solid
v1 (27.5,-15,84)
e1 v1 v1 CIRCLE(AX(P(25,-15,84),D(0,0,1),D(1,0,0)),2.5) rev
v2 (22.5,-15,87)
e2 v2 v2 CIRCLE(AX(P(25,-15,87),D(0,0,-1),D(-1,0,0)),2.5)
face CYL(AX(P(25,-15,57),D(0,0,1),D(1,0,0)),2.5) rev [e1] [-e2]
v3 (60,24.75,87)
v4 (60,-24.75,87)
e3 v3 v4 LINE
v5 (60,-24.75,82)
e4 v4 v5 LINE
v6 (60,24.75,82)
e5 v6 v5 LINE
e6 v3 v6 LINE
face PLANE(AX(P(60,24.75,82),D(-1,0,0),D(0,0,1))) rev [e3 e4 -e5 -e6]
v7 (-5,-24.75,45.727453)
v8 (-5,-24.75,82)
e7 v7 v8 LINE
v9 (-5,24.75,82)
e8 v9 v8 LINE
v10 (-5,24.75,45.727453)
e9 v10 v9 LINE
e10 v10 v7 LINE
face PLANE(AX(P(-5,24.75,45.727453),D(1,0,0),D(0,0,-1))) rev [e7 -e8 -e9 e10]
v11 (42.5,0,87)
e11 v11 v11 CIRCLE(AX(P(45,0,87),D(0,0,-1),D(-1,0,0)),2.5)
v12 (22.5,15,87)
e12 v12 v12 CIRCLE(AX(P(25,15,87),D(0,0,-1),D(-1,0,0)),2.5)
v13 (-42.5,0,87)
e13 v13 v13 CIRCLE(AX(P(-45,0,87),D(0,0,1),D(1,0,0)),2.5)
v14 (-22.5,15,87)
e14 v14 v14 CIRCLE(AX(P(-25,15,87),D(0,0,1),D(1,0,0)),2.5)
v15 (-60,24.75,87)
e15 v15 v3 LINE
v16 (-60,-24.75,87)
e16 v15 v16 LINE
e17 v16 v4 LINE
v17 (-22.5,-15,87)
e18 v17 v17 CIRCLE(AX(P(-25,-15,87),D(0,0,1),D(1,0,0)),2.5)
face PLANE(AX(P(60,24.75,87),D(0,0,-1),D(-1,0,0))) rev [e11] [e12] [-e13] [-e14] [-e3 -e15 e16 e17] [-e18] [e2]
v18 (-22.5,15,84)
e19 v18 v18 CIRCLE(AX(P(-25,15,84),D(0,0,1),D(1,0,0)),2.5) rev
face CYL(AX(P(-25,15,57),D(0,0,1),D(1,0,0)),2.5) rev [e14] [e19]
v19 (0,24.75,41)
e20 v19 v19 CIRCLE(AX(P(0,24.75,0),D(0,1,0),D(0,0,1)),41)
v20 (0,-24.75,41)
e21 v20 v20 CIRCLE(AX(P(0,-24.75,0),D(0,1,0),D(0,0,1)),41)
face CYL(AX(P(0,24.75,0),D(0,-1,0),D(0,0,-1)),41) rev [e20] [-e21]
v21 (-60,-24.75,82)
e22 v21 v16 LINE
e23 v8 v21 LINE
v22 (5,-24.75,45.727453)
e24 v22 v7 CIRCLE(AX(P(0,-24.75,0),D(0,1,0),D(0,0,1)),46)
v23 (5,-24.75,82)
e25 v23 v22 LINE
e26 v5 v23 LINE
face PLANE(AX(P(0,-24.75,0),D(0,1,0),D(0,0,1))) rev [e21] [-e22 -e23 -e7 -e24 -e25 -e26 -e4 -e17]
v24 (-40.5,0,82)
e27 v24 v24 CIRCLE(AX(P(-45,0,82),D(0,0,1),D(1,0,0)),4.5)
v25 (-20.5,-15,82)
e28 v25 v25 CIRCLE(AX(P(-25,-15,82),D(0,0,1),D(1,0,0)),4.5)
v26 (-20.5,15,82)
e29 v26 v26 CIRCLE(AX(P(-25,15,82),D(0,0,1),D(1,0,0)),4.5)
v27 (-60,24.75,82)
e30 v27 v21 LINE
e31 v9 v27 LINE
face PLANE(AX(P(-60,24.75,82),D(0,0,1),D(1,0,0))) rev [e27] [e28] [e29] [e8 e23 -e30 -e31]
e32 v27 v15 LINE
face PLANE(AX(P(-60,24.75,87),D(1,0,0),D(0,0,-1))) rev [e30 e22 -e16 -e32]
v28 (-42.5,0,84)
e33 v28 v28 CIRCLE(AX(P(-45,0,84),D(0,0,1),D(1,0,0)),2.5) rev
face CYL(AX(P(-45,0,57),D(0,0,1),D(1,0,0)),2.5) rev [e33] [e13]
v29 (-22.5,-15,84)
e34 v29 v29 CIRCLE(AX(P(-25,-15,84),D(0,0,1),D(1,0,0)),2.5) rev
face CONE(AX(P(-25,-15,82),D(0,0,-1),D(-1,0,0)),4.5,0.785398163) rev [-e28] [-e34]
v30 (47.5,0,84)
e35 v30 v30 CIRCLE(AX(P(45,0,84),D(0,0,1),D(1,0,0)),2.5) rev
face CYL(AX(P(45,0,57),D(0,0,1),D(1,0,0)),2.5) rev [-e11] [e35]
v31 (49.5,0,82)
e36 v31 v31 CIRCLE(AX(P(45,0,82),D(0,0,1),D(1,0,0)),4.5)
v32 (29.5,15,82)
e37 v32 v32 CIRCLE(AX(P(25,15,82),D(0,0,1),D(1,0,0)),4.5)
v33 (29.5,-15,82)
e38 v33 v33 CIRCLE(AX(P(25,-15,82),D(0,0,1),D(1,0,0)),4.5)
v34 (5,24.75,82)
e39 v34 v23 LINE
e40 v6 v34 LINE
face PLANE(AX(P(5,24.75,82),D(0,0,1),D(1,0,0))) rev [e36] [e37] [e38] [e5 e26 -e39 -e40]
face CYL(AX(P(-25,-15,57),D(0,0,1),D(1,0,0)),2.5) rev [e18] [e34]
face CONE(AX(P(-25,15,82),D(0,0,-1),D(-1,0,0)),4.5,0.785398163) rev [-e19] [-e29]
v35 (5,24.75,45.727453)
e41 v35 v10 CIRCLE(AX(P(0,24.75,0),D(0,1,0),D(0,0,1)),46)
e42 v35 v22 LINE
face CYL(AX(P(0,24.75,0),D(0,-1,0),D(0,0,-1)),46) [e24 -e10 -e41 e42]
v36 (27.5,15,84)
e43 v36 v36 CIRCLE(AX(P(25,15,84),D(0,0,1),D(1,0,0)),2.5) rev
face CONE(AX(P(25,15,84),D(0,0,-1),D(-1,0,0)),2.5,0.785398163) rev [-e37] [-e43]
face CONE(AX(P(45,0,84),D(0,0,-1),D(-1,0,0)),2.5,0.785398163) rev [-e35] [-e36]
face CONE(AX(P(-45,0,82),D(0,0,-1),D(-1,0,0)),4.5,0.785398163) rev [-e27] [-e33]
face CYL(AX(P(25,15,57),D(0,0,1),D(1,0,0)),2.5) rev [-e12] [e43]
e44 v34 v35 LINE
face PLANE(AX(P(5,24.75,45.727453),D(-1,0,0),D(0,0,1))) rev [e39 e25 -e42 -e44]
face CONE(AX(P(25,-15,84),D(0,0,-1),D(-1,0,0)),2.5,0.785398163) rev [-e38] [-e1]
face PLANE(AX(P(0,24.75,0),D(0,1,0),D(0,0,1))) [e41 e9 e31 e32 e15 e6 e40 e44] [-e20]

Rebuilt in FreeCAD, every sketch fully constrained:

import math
import FreeCAD as App
import Part
import Sketcher

V = App.Vector
Q = App.Units.Quantity


def edges_at(feature, points):
    """Names of the edges that pass closest to the given points."""
    edges = feature.Shape.Edges
    near = lambda p: min(range(len(edges)), key=lambda i: edges[i].distToShape(Part.Vertex(*p))[0])
    return sorted({f"Edge{near(p) + 1}" for p in points})

doc = App.newDocument("Part")
params = doc.addObject("Spreadsheet::Sheet", "Params")
for row, (alias, value) in enumerate([
    ("sketch1_diameter", "82 mm"),
    ("sketch1_radius", "46 mm"),
    ("sketch1_width", "55 mm"),
    ("sketch1_width2", "120 mm"),
    ("sketch1_height", "5 mm"),
    ("pad1_length", "49.5 mm"),
    ("sketch2_diameter", "5 mm"),
    ("pocket1_length", "30 mm"),
    ("chamfer_size", "2 mm"),
], start=1):
    params.set(f"A{row}", alias)
    params.set(f"B{row}", "=" + value)
    params.setAlias(f"B{row}", alias)

body = doc.addObject("PartDesign::Body", "Body")

# Sketch on XZ plane
sketch1 = body.newObject("Sketcher::SketchObject", "Sketch")
sketch1.AttachmentSupport = (doc.getObject("XZ_Plane"), [""])
sketch1.MapMode = "FlatFace"
sketch1.addGeometry(Part.LineSegment(V(60, 82, 0), V(5, 82, 0)), False)
sketch1.addGeometry(Part.LineSegment(V(5, 82, 0), V(5, 46, 0)), False)
sketch1.addGeometry(Part.ArcOfCircle(Part.Circle(V(0, 0, 0), V(0, 0, 1), 46), math.radians(96), math.radians(444)), False)
sketch1.addGeometry(Part.LineSegment(V(-5, 46, 0), V(-5, 82, 0)), False)
sketch1.addGeometry(Part.LineSegment(V(-5, 82, 0), V(-60, 82, 0)), False)
sketch1.addGeometry(Part.LineSegment(V(-60, 82, 0), V(-60, 87, 0)), False)
sketch1.addGeometry(Part.LineSegment(V(-60, 87, 0), V(60, 87, 0)), False)
sketch1.addGeometry(Part.LineSegment(V(60, 87, 0), V(60, 82, 0)), False)
sketch1.addGeometry(Part.Circle(V(0, 0, 0), V(0, 0, 1), 41), False)
sketch1.addConstraint(Sketcher.Constraint("Coincident", 0, 2, 1, 1))
sketch1.addConstraint(Sketcher.Constraint("Coincident", 1, 2, 2, 2))
sketch1.addConstraint(Sketcher.Constraint("Coincident", 2, 1, 3, 1))
sketch1.addConstraint(Sketcher.Constraint("Coincident", 3, 2, 4, 1))
sketch1.addConstraint(Sketcher.Constraint("Coincident", 4, 2, 5, 1))
sketch1.addConstraint(Sketcher.Constraint("Coincident", 5, 2, 6, 1))
sketch1.addConstraint(Sketcher.Constraint("Coincident", 6, 2, 7, 1))
sketch1.addConstraint(Sketcher.Constraint("Coincident", 7, 2, 0, 1))
sketch1.addConstraint(Sketcher.Constraint("Horizontal", 0))
sketch1.addConstraint(Sketcher.Constraint("Vertical", 1))
sketch1.addConstraint(Sketcher.Constraint("Vertical", 3))
sketch1.addConstraint(Sketcher.Constraint("Horizontal", 4))
sketch1.addConstraint(Sketcher.Constraint("Vertical", 5))
sketch1.addConstraint(Sketcher.Constraint("Horizontal", 6))
sketch1.addConstraint(Sketcher.Constraint("Vertical", 7))
sketch1.addConstraint(Sketcher.Constraint("Coincident", 2, 3, -1, 1))
sketch1.addConstraint(Sketcher.Constraint("Coincident", 8, 3, -1, 1))
sketch1.addConstraint(Sketcher.Constraint("Symmetric", 0, 2, 3, 2, -2))
sketch1.addConstraint(Sketcher.Constraint("Equal", 0, 4))
sketch1.addConstraint(Sketcher.Constraint("Diameter", 8, Q("82 mm")))
sketch1.addConstraint(Sketcher.Constraint("Radius", 2, Q("46 mm")))
sketch1.addConstraint(Sketcher.Constraint("DistanceX", 0, 2, 0, 1, Q("55 mm")))
sketch1.addConstraint(Sketcher.Constraint("DistanceX", 6, 1, 6, 2, Q("120 mm")))
sketch1.addConstraint(Sketcher.Constraint("DistanceY", 5, 1, 5, 2, Q("5 mm")))
sketch1.addConstraint(Sketcher.Constraint("DistanceY", -1, 1, 0, 2, Q("82 mm")))
sketch1.setExpression("Constraints[19]", "Params.sketch1_diameter")
sketch1.setExpression("Constraints[20]", "Params.sketch1_radius")
sketch1.setExpression("Constraints[21]", "Params.sketch1_width")
sketch1.setExpression("Constraints[22]", "Params.sketch1_width2")
sketch1.setExpression("Constraints[23]", "Params.sketch1_height")
pad1 = body.newObject("PartDesign::Pad", "Pad")
pad1.Profile = sketch1
pad1.setExpression("Length", "Params.pad1_length")
pad1.Midplane = True

# Sketch on XY plane
sketch2 = body.newObject("Sketcher::SketchObject", "Sketch001")
sketch2.AttachmentSupport = (doc.getObject("XY_Plane"), [""])
sketch2.MapMode = "FlatFace"
sketch2.AttachmentOffset = App.Placement(V(0, 0, 87), App.Rotation())
sketch2.addGeometry(Part.Circle(V(-25, 15, 0), V(0, 0, 1), 2.5), False)
sketch2.addGeometry(Part.Circle(V(-45, 0, 0), V(0, 0, 1), 2.5), False)
sketch2.addGeometry(Part.Circle(V(-25, -15, 0), V(0, 0, 1), 2.5), False)
sketch2.addGeometry(Part.Circle(V(25, -15, 0), V(0, 0, 1), 2.5), False)
sketch2.addGeometry(Part.Circle(V(45, 0, 0), V(0, 0, 1), 2.5), False)
sketch2.addGeometry(Part.Circle(V(25, 15, 0), V(0, 0, 1), 2.5), False)
sketch2.addConstraint(Sketcher.Constraint("Equal", 0, 1))
sketch2.addConstraint(Sketcher.Constraint("Equal", 1, 2))
sketch2.addConstraint(Sketcher.Constraint("Equal", 2, 3))
sketch2.addConstraint(Sketcher.Constraint("Equal", 3, 4))
sketch2.addConstraint(Sketcher.Constraint("Equal", 4, 5))
sketch2.addConstraint(Sketcher.Constraint("Symmetric", 0, 3, 3, 3, -1, 1))
sketch2.addConstraint(Sketcher.Constraint("Symmetric", 1, 3, 4, 3, -1, 1))
sketch2.addConstraint(Sketcher.Constraint("Symmetric", 2, 3, 5, 3, -1, 1))
sketch2.addConstraint(Sketcher.Constraint("Symmetric", 2, 3, 3, 3, -2))
sketch2.addConstraint(Sketcher.Constraint("PointOnObject", 1, 3, -1))
sketch2.addConstraint(Sketcher.Constraint("Diameter", 0, Q("5 mm")))
sketch2.addConstraint(Sketcher.Constraint("DistanceX", 0, 3, -1, 1, Q("25 mm")))
sketch2.addConstraint(Sketcher.Constraint("DistanceY", -1, 1, 0, 3, Q("15 mm")))
sketch2.addConstraint(Sketcher.Constraint("DistanceX", 1, 3, -1, 1, Q("45 mm")))
sketch2.setExpression("Constraints[10]", "Params.sketch2_diameter")
pocket1 = body.newObject("PartDesign::Pocket", "Pocket")
pocket1.Profile = sketch2
pocket1.setExpression("Length", "Params.pocket1_length")
doc.recompute()

chamfer = body.newObject("PartDesign::Chamfer", "Chamfer")
chamfer.Base = (pocket1, edges_at(pocket1, [
    (-47.5, 0, 82),
    (-27.5, 15, 82),
    (-27.5, -15, 82),
    (22.5, 15, 82),
    (22.5, -15, 82),
    (42.5, 0, 82),
]))
chamfer.setExpression("Size", "Params.chamfer_size")

doc.recompute()
